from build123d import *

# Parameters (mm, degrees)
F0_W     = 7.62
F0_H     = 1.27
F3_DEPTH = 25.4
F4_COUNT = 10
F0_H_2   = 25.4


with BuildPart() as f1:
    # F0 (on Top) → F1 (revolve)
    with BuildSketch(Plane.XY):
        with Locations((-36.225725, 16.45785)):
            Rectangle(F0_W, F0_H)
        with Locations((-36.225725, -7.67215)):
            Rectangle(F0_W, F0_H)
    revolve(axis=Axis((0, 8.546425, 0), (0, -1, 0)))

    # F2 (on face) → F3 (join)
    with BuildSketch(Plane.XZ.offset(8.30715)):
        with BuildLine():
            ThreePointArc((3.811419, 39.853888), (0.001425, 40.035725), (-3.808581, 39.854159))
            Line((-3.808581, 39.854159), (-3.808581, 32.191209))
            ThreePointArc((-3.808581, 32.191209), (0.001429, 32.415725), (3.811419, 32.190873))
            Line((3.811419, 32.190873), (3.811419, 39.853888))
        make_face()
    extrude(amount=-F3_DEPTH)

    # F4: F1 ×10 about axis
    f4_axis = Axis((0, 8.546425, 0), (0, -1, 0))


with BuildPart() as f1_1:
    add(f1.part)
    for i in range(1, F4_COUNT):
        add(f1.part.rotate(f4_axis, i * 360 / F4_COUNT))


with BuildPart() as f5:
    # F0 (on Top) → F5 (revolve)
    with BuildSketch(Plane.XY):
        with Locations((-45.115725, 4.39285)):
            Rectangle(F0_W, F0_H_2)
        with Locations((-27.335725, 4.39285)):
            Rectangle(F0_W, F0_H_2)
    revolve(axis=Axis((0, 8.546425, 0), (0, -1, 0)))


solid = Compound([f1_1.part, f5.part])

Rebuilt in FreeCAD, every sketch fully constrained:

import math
import FreeCAD as App
import Part
import Sketcher
from FreeCAD import Vector
Q = App.Units.Quantity


def add_polygon(sketch, points):
    """Adds a closed chain of lines whose ends are joined by coincident constraints."""
    first, n = sketch.GeometryCount, len(points)
    for a, b in zip(points, points[1:] + points[:1]):
        sketch.addGeometry(Part.LineSegment(App.Vector(*a, 0), App.Vector(*b, 0)), False)
    for i in range(n):
        sketch.addConstraint(Sketcher.Constraint("Coincident", first + i, 2, first + (i + 1) % n, 1))

doc = App.newDocument("Part")
body = doc.addObject("PartDesign::Body", "Body")
body.AllowCompound = True

sketch1 = doc.addObject("Sketcher::SketchObject", "Sketch")
body.addObject(sketch1)
sketch1.AttachmentSupport = (doc.XY_Plane, [""])
sketch1.MapMode = "FlatFace"
add_polygon(sketch1, [(-40, 17.1), (-40, 15.8), (-32.4, 15.8), (-32.4, 17.1)])
add_polygon(sketch1, [(-40, -7), (-40, -8.3), (-32.4, -8.3), (-32.4, -7)])
sketch1.addConstraint(Sketcher.Constraint("Vertical", 0))
sketch1.addConstraint(Sketcher.Constraint("Horizontal", 1))
sketch1.addConstraint(Sketcher.Constraint("Vertical", 2))
sketch1.addConstraint(Sketcher.Constraint("Horizontal", 3))
sketch1.addConstraint(Sketcher.Constraint("Vertical", 4))
sketch1.addConstraint(Sketcher.Constraint("Horizontal", 5))
sketch1.addConstraint(Sketcher.Constraint("Vertical", 6))
sketch1.addConstraint(Sketcher.Constraint("Horizontal", 7))
sketch1.addConstraint(Sketcher.Constraint("Vertical", 3, 2, 4, 2))
sketch1.addConstraint(Sketcher.Constraint("Vertical", 2, 2, 5, 2))
sketch1.addConstraint(Sketcher.Constraint("Equal", 2, 4))
sketch1.addConstraint(Sketcher.Constraint("DistanceX", 1, 1, 1, 2, Q("0.3 in")))
sketch1.addConstraint(Sketcher.Constraint("DistanceY", 4, 2, 3, 2, Q("1 in")))
sketch1.addConstraint(Sketcher.Constraint("DistanceY", 0, 2, 0, 1, Q("0.05 in")))
sketch1.addConstraint(Sketcher.Constraint("DistanceY", -1, 1, 0, 2, Q("15.82285 mm")))
sketch1.addConstraint(Sketcher.Constraint("DistanceX", 0, 2, -1, 1, Q("40.035725 mm")))
revolution = doc.addObject("PartDesign::Revolution", "Revolution")
body.addObject(revolution)
revolution.Profile = sketch1
revolution.ReferenceAxis = (sketch1, ["V_Axis"])
revolution.Angle = 360

sketch2 = doc.addObject("Sketcher::SketchObject", "Sketch001")
body.addObject(sketch2)
sketch2.AttachmentSupport = (doc.XZ_Plane, [""])
sketch2.MapMode = "FlatFace"
sketch2.AttachmentOffset = App.Placement(Vector(0, 0, 8.30715), App.Rotation())
sketch2.addGeometry(Part.ArcOfCircle(Part.Circle(Vector(0, 0, 0), Vector(0, 0, 1), 40), math.radians(84.54), math.radians(95.46)), False)
sketch2.addGeometry(Part.LineSegment(Vector(-4, 40, 0), Vector(-4, 32, 0)), False)
sketch2.addGeometry(Part.ArcOfCircle(Part.Circle(Vector(0, 0, 0), Vector(0, 0, 1), 32), math.radians(83.25), math.radians(96.75)), False)
sketch2.addGeometry(Part.LineSegment(Vector(4, 32, 0), Vector(4, 40, 0)), False)
sketch2.addConstraint(Sketcher.Constraint("Coincident", 0, 2, 1, 1))
sketch2.addConstraint(Sketcher.Constraint("Coincident", 1, 2, 2, 2))
sketch2.addConstraint(Sketcher.Constraint("Coincident", 2, 1, 3, 1))
sketch2.addConstraint(Sketcher.Constraint("Coincident", 3, 2, 0, 1))
sketch2.addConstraint(Sketcher.Constraint("Vertical", 1))
sketch2.addConstraint(Sketcher.Constraint("Vertical", 3))
sketch2.addConstraint(Sketcher.Constraint("PointOnObject", 0, 3, -2))
sketch2.addConstraint(Sketcher.Constraint("PointOnObject", 2, 3, -2))
sketch2.addConstraint(Sketcher.Constraint("DistanceX", 1, 2, 2, 1, Q("0.3 in")))
sketch2.addConstraint(Sketcher.Constraint("Radius", 0, Q("40.03576 mm")))
sketch2.addConstraint(Sketcher.Constraint("Radius", 2, Q("32.41571 mm")))
sketch2.addConstraint(Sketcher.Constraint("DistanceY", 1, 2, 1, 1, Q("7.66295 mm")))
sketch2.addConstraint(Sketcher.Constraint("DistanceY", 3, 1, 3, 2, Q("7.663015 mm")))
sketch2.addConstraint(Sketcher.Constraint("DistanceY", -1, 1, 0, 2, Q("39.854159 mm")))
pad1 = doc.addObject("PartDesign::Pad", "Pad")
body.addObject(pad1)
pad1.Profile = sketch2
pad1.Length = Q("1 in")
pad1.Reversed = True
body2 = doc.addObject("PartDesign::Body", "Body001")
doc.recompute()

body2.BaseFeature = body
doc.recompute()

body3 = doc.addObject("PartDesign::Body", "Body002")
body3.BaseFeature = body
body3.Placement = App.Placement(Vector(0, 0, 0), App.Rotation(Vector(0, -1, 0), 36))
boolean = doc.addObject("PartDesign::Boolean", "Boolean")
body2.addObject(boolean)
boolean.Type = "Fuse"
boolean.addObjects([body3])
doc.recompute()

body4 = doc.addObject("PartDesign::Body", "Body003")
body4.BaseFeature = body
body4.Placement = App.Placement(Vector(0, 0, 0), App.Rotation(Vector(0, -1, 0), 72))
boolean2 = doc.addObject("PartDesign::Boolean", "Boolean001")
body2.addObject(boolean2)
boolean2.Type = "Fuse"
boolean2.addObjects([body4])
doc.recompute()

body5 = doc.addObject("PartDesign::Body", "Body004")
body5.BaseFeature = body
body5.Placement = App.Placement(Vector(0, 0, 0), App.Rotation(Vector(0, -1, 0), 108))
boolean3 = doc.addObject("PartDesign::Boolean", "Boolean002")
body2.addObject(boolean3)
boolean3.Type = "Fuse"
boolean3.addObjects([body5])
doc.recompute()

body6 = doc.addObject("PartDesign::Body", "Body005")
body6.BaseFeature = body
body6.Placement = App.Placement(Vector(0, 0, 0), App.Rotation(Vector(0, -1, 0), 144))
boolean4 = doc.addObject("PartDesign::Boolean", "Boolean003")
body2.addObject(boolean4)
boolean4.Type = "Fuse"
boolean4.addObjects([body6])
doc.recompute()

body7 = doc.addObject("PartDesign::Body", "Body006")
body7.BaseFeature = body
body7.Placement = App.Placement(Vector(0, 0, 0), App.Rotation(Vector(0, -1, 0), 180))
boolean5 = doc.addObject("PartDesign::Boolean", "Boolean004")
body2.addObject(boolean5)
boolean5.Type = "Fuse"
boolean5.addObjects([body7])
doc.recompute()

body8 = doc.addObject("PartDesign::Body", "Body007")
body8.BaseFeature = body
body8.Placement = App.Placement(Vector(0, 0, 0), App.Rotation(Vector(0, -1, 0), 216))
boolean6 = doc.addObject("PartDesign::Boolean", "Boolean005")
body2.addObject(boolean6)
boolean6.Type = "Fuse"
boolean6.addObjects([body8])
doc.recompute()

body9 = doc.addObject("PartDesign::Body", "Body008")
body9.BaseFeature = body
body9.Placement = App.Placement(Vector(0, 0, 0), App.Rotation(Vector(0, -1, 0), 252))
boolean7 = doc.addObject("PartDesign::Boolean", "Boolean006")
body2.addObject(boolean7)
boolean7.Type = "Fuse"
boolean7.addObjects([body9])
doc.recompute()

body10 = doc.addObject("PartDesign::Body", "Body009")
body10.BaseFeature = body
body10.Placement = App.Placement(Vector(0, 0, 0), App.Rotation(Vector(0, -1, 0), 288))
boolean8 = doc.addObject("PartDesign::Boolean", "Boolean007")
body2.addObject(boolean8)
boolean8.Type = "Fuse"
boolean8.addObjects([body10])
doc.recompute()

body.Placement = App.Placement(Vector(0, 0, 0), App.Rotation(Vector(0, -1, 0), 324))
boolean9 = doc.addObject("PartDesign::Boolean", "Boolean008")
body2.addObject(boolean9)
boolean9.Type = "Fuse"
boolean9.addObjects([body])
body11 = doc.addObject("PartDesign::Body", "Body010")
body11.AllowCompound = True

sketch3 = doc.addObject("Sketcher::SketchObject", "Sketch002")
body11.addObject(sketch3)
sketch3.AttachmentSupport = (doc.getObject("XY_Plane010"), [""])
sketch3.MapMode = "FlatFace"
add_polygon(sketch3, [(-49, 17), (-49, -8), (-41, -8), (-41, 17)])
add_polygon(sketch3, [(-31, 17), (-31, -8), (-24, -8), (-24, 17)])
sketch3.addConstraint(Sketcher.Constraint("Vertical", 0))
sketch3.addConstraint(Sketcher.Constraint("Horizontal", 1))
sketch3.addConstraint(Sketcher.Constraint("Vertical", 2))
sketch3.addConstraint(Sketcher.Constraint("Horizontal", 3))
sketch3.addConstraint(Sketcher.Constraint("Vertical", 4))
sketch3.addConstraint(Sketcher.Constraint("Horizontal", 5))
sketch3.addConstraint(Sketcher.Constraint("Vertical", 6))
sketch3.addConstraint(Sketcher.Constraint("Horizontal", 7))
sketch3.addConstraint(Sketcher.Constraint("Horizontal", 1, 2, 4, 2))
sketch3.addConstraint(Sketcher.Constraint("Horizontal", 3, 2, 6, 2))
sketch3.addConstraint(Sketcher.Constraint("Equal", 3, 5))
sketch3.addConstraint(Sketcher.Constraint("DistanceY", 0, 2, 0, 1, Q("1 in")))
sketch3.addConstraint(Sketcher.Constraint("DistanceX", 1, 1, 1, 2, Q("0.3 in")))
sketch3.addConstraint(Sketcher.Constraint("DistanceX", 0, 2, 5, 2, Q("1 in")))
sketch3.addConstraint(Sketcher.Constraint("DistanceY", 0, 2, -1, 1, Q("8.30715 mm")))
sketch3.addConstraint(Sketcher.Constraint("DistanceX", 0, 2, -1, 1, Q("48.925725 mm")))
revolution2 = doc.addObject("PartDesign::Revolution", "Revolution001")
body11.addObject(revolution2)
revolution2.Profile = sketch3
revolution2.ReferenceAxis = (sketch3, ["V_Axis"])
revolution2.Angle = 360

doc.recompute()
